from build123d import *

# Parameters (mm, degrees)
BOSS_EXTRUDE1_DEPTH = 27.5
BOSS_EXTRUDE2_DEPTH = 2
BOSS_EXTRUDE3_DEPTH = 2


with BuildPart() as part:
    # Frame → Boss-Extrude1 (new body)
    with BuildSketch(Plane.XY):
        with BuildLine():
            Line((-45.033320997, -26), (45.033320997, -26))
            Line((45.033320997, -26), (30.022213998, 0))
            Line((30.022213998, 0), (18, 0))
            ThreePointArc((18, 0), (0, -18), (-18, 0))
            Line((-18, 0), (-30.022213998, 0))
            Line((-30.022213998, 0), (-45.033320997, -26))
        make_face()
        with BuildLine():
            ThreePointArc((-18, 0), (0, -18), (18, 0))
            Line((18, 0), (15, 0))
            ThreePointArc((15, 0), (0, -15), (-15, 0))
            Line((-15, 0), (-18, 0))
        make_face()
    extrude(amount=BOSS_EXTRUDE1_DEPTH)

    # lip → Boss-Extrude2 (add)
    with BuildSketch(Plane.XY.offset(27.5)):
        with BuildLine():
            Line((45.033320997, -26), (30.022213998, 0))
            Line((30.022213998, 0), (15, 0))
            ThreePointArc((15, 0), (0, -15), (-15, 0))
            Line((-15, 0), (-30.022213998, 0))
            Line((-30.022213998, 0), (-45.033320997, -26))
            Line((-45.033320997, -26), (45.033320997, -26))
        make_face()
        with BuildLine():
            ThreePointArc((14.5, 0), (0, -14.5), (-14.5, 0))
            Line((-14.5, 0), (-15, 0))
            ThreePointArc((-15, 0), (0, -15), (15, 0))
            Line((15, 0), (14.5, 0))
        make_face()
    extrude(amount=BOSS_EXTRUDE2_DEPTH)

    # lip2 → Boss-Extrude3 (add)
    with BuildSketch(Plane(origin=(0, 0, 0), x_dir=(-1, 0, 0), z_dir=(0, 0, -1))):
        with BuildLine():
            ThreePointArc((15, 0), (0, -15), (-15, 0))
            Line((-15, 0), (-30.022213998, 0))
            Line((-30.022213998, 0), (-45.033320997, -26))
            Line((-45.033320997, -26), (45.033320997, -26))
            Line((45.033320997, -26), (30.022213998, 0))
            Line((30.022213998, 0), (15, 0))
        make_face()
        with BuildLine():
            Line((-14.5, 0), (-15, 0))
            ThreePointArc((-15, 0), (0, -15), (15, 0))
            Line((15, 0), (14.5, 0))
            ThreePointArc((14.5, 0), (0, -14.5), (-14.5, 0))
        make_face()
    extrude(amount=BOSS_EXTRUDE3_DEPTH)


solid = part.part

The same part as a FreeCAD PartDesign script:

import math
import FreeCAD as App
import Part
import Sketcher

V = App.Vector
Q = App.Units.Quantity

doc = App.newDocument("Part")
params = doc.addObject("Spreadsheet::Sheet", "Params")
for row, (alias, value) in enumerate([
    ("sketch1_radius", "15 mm"),
    ("pad1_length", "27.5 mm"),
    ("sketch2_radius", "14.5 mm"),
    ("pad2_length", "2 mm"),
    ("sketch3_radius", "14.5 mm"),
    ("pad3_length", "2 mm"),
], start=1):
    params.set(f"A{row}", alias)
    params.set(f"B{row}", "=" + value)
    params.setAlias(f"B{row}", alias)

body = doc.addObject("PartDesign::Body", "Body")

# Sketch on XY plane
sketch1 = doc.addObject("Sketcher::SketchObject", "Sketch")
body.addObject(sketch1)
sketch1.AttachmentSupport = (doc.XY_Plane, [""])
sketch1.MapMode = "FlatFace"
sketch1.addGeometry([
    Part.LineSegment(V(-45, -26, 0), V(45, -26, 0)),  # 0
    Part.LineSegment(V(45, -26, 0), V(30, 0, 0)),  # 1
    Part.LineSegment(V(30, 0, 0), V(15, 0, 0)),  # 2
    Part.ArcOfCircle(Part.Circle(V(0, 0, 0), V(0, 0, 1), 15), math.radians(180), math.radians(360)),  # 3
    Part.LineSegment(V(-15, 0, 0), V(-30, 0, 0)),  # 4
    Part.LineSegment(V(-30, 0, 0), V(-45, -26, 0)),  # 5
], False)
sketch1.addConstraint([
    Sketcher.Constraint("Coincident", 0, 2, 1, 1),
    Sketcher.Constraint("Coincident", 1, 2, 2, 1),
    Sketcher.Constraint("Coincident", 2, 2, 3, 2),
    Sketcher.Constraint("Coincident", 3, 1, 4, 1),
    Sketcher.Constraint("Coincident", 4, 2, 5, 1),
    Sketcher.Constraint("Coincident", 5, 2, 0, 1),
    Sketcher.Constraint("Horizontal", 0),
    Sketcher.Constraint("Horizontal", 2),
    Sketcher.Constraint("Horizontal", 4),
    Sketcher.Constraint("Coincident", 3, 3, -1, 1),
    Sketcher.Constraint("Symmetric", 1, 2, 4, 2, -1, 1),
    Sketcher.Constraint("PointOnObject", 1, 2, -1),
    Sketcher.Constraint("Equal", 1, 5),
    Sketcher.Constraint("Radius", 3, Q("15 mm")),
    Sketcher.Constraint("Angle", 1, Q("120 deg")),
    Sketcher.Constraint("DistanceY", 0, 2, -1, 1, Q("26 mm")),
    Sketcher.Constraint("DistanceX", 0, 1, 0, 2, Q("90.066642 mm")),
])
sketch1.setExpression("Constraints[13]", "Params.sketch1_radius")
pad1 = doc.addObject("PartDesign::Pad", "Pad")
body.addObject(pad1)
pad1.Profile = sketch1
pad1.setExpression("Length", "Params.pad1_length")

# Sketch on XY plane
sketch2 = doc.addObject("Sketcher::SketchObject", "Sketch001")
body.addObject(sketch2)
sketch2.AttachmentSupport = (doc.XY_Plane, [""])
sketch2.MapMode = "FlatFace"
sketch2.AttachmentOffset = App.Placement(V(0, 0, 27.5), App.Rotation())
sketch2.addGeometry([
    Part.LineSegment(V(45, -26, 0), V(30, 0, 0)),  # 0
    Part.LineSegment(V(30, 0, 0), V(14, 0, 0)),  # 1
    Part.ArcOfCircle(Part.Circle(V(0, 0, 0), V(0, 0, 1), 14), math.radians(180), math.radians(360)),  # 2
    Part.LineSegment(V(-14, 0, 0), V(-30, 0, 0)),  # 3
    Part.LineSegment(V(-30, 0, 0), V(-45, -26, 0)),  # 4
    Part.LineSegment(V(-45, -26, 0), V(45, -26, 0)),  # 5
], False)
sketch2.addConstraint([
    Sketcher.Constraint("Coincident", 0, 2, 1, 1),
    Sketcher.Constraint("Coincident", 1, 2, 2, 2),
    Sketcher.Constraint("Coincident", 2, 1, 3, 1),
    Sketcher.Constraint("Coincident", 3, 2, 4, 1),
    Sketcher.Constraint("Coincident", 4, 2, 5, 1),
    Sketcher.Constraint("Coincident", 5, 2, 0, 1),
    Sketcher.Constraint("Horizontal", 1),
    Sketcher.Constraint("Horizontal", 3),
    Sketcher.Constraint("Horizontal", 5),
    Sketcher.Constraint("Coincident", 2, 3, -1, 1),
    Sketcher.Constraint("Symmetric", 0, 2, 3, 2, -1, 1),
    Sketcher.Constraint("PointOnObject", 0, 2, -1),
    Sketcher.Constraint("Equal", 0, 4),
    Sketcher.Constraint("Radius", 2, Q("14.5 mm")),
    Sketcher.Constraint("Angle", 0, Q("120 deg")),
    Sketcher.Constraint("DistanceY", 4, 2, -1, 1, Q("26 mm")),
    Sketcher.Constraint("DistanceX", 5, 1, 5, 2, Q("90.066642 mm")),
])
sketch2.setExpression("Constraints[13]", "Params.sketch2_radius")
pad2 = doc.addObject("PartDesign::Pad", "Pad001")
body.addObject(pad2)
pad2.Profile = sketch2
pad2.setExpression("Length", "Params.pad2_length")

# Sketch on XY plane
sketch3 = doc.addObject("Sketcher::SketchObject", "Sketch002")
body.addObject(sketch3)
sketch3.AttachmentSupport = (doc.XY_Plane, [""])
sketch3.MapMode = "FlatFace"
sketch3.addGeometry([
    Part.LineSegment(V(30, 0, 0), V(45, -26, 0)),  # 0
    Part.LineSegment(V(45, -26, 0), V(-45, -26, 0)),  # 1
    Part.LineSegment(V(-45, -26, 0), V(-30, 0, 0)),  # 2
    Part.LineSegment(V(-30, 0, 0), V(-14, 0, 0)),  # 3
    Part.ArcOfCircle(Part.Circle(V(0, 0, 0), V(0, 0, 1), 14), math.radians(180), math.radians(360)),  # 4
    Part.LineSegment(V(14, 0, 0), V(30, 0, 0)),  # 5
], False)
sketch3.addConstraint([
    Sketcher.Constraint("Coincident", 0, 2, 1, 1),
    Sketcher.Constraint("Coincident", 1, 2, 2, 1),
    Sketcher.Constraint("Coincident", 2, 2, 3, 1),
    Sketcher.Constraint("Coincident", 3, 2, 4, 1),
    Sketcher.Constraint("Coincident", 4, 2, 5, 1),
    Sketcher.Constraint("Coincident", 5, 2, 0, 1),
    Sketcher.Constraint("Horizontal", 1),
    Sketcher.Constraint("Horizontal", 3),
    Sketcher.Constraint("Horizontal", 5),
    Sketcher.Constraint("Coincident", 4, 3, -1, 1),
    Sketcher.Constraint("Symmetric", 2, 2, 5, 2, -1, 1),
    Sketcher.Constraint("PointOnObject", 2, 2, -1),
    Sketcher.Constraint("Equal", 0, 2),
    Sketcher.Constraint("Radius", 4, Q("14.5 mm")),
    Sketcher.Constraint("Angle", 0, Q("-60 deg")),
    Sketcher.Constraint("DistanceY", 0, 2, -1, 1, Q("26 mm")),
    Sketcher.Constraint("DistanceX", 1, 2, 1, 1, Q("90.066642 mm")),
])
sketch3.setExpression("Constraints[13]", "Params.sketch3_radius")
pad3 = doc.addObject("PartDesign::Pad", "Pad002")
body.addObject(pad3)
pad3.Profile = sketch3
pad3.setExpression("Length", "Params.pad3_length")
pad3.Reversed = True

doc.recompute()
